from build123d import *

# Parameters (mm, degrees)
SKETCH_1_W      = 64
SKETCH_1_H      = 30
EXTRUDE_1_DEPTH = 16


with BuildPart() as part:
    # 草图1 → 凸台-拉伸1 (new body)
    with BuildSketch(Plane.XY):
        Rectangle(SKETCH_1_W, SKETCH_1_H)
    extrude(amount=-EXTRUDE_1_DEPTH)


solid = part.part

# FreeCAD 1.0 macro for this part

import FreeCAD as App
import Part
import Sketcher
Q = App.Units.Quantity

doc = App.newDocument("Part")
body = doc.addObject("PartDesign::Body", "Body")

sketch1 = body.newObject("Sketcher::SketchObject", "Sketch")
sketch1.AttachmentSupport = (doc.getObject("XY_Plane"), [""])
sketch1.MapMode = "FlatFace"
sketch1.addGeometry([
    Part.LineSegment(App.Vector(-32, 15, 0), App.Vector(-32, -15, 0)),
    Part.LineSegment(App.Vector(-32, -15, 0), App.Vector(32, -15, 0)),
    Part.LineSegment(App.Vector(32, -15, 0), App.Vector(32, 15, 0)),
    Part.LineSegment(App.Vector(32, 15, 0), App.Vector(-32, 15, 0)),
], False)
sketch1.addConstraint([
    Sketcher.Constraint("Coincident", 0, 2, 1, 1),
    Sketcher.Constraint("Coincident", 1, 2, 2, 1),
    Sketcher.Constraint("Coincident", 2, 2, 3, 1),
    Sketcher.Constraint("Coincident", 3, 2, 0, 1),
    Sketcher.Constraint("Vertical", 0),
    Sketcher.Constraint("Horizontal", 1),
    Sketcher.Constraint("Vertical", 2),
    Sketcher.Constraint("Horizontal", 3),
    Sketcher.Constraint("Symmetric", 0, 2, 2, 2, -1, 1),
    Sketcher.Constraint("DistanceX", 1, 1, 1, 2, Q("64 mm")),
    Sketcher.Constraint("DistanceY", 0, 2, 0, 1, Q("30 mm")),
])
pad1 = body.newObject("PartDesign::Pad", "Pad")
pad1.Profile = sketch1
pad1.Length = 16
pad1.Reversed = True

doc.recompute()
